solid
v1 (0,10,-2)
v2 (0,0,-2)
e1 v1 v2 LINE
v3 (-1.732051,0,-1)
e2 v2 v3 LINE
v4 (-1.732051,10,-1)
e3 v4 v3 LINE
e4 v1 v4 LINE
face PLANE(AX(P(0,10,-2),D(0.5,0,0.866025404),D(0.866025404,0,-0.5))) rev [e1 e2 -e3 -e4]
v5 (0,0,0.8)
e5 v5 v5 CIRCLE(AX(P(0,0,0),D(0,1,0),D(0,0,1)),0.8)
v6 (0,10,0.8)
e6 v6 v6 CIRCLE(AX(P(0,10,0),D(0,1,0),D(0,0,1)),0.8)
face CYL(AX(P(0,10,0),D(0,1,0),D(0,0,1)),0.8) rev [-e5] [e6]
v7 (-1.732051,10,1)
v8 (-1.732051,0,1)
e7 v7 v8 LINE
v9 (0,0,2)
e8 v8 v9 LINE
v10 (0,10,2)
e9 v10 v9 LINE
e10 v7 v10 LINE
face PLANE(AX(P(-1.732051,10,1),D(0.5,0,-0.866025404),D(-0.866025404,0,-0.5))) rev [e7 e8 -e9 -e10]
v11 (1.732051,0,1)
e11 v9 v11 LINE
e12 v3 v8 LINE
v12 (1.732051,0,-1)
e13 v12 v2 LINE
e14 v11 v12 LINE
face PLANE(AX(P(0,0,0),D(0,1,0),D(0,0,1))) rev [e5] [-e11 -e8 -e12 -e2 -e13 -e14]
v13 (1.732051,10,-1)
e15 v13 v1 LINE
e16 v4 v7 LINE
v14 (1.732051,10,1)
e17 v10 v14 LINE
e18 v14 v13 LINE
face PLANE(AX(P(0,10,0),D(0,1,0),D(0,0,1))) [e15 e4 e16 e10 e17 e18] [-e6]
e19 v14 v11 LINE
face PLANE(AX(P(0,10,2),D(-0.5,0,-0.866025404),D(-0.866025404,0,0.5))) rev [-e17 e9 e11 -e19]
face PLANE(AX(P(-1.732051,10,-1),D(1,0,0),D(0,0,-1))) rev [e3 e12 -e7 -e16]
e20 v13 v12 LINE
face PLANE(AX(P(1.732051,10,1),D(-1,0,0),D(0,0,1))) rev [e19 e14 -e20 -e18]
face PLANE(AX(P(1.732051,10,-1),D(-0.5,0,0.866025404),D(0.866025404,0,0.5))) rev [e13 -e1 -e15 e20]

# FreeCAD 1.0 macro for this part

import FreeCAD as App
import Part
import Sketcher
from FreeCAD import Vector
Q = App.Units.Quantity

doc = App.newDocument("Part")
body = doc.addObject("PartDesign::Body", "Body")

sketch1 = body.newObject("Sketcher::SketchObject", "Sketch")
sketch1.AttachmentSupport = (doc.getObject("XZ_Plane"), [""])
sketch1.MapMode = "FlatFace"
sketch1.addGeometry([
    Part.LineSegment(Vector(1.7, 1, 0), Vector(1.7, -1, 0)),
    Part.LineSegment(Vector(1.7, -1, 0), Vector(0, -2, 0)),
    Part.LineSegment(Vector(0, -2, 0), Vector(-1.7, -1, 0)),
    Part.LineSegment(Vector(-1.7, -1, 0), Vector(-1.7, 1, 0)),
    Part.LineSegment(Vector(-1.7, 1, 0), Vector(0, 2, 0)),
    Part.LineSegment(Vector(0, 2, 0), Vector(1.7, 1, 0)),
], False)
sketch1.addConstraint([
    Sketcher.Constraint("Coincident", 0, 2, 1, 1),
    Sketcher.Constraint("Coincident", 1, 2, 2, 1),
    Sketcher.Constraint("Coincident", 2, 2, 3, 1),
    Sketcher.Constraint("Coincident", 3, 2, 4, 1),
    Sketcher.Constraint("Coincident", 4, 2, 5, 1),
    Sketcher.Constraint("Coincident", 5, 2, 0, 1),
    Sketcher.Constraint("Vertical", 0),
    Sketcher.Constraint("Vertical", 3),
    Sketcher.Constraint("Symmetric", 0, 2, 3, 2, -1, 1),
    Sketcher.Constraint("Symmetric", 1, 2, 4, 2, -1, 1),
    Sketcher.Constraint("PointOnObject", 1, 2, -2),
    Sketcher.Constraint("Parallel", 2, 5),
    Sketcher.Constraint("Horizontal", 0, 2, 2, 2),
    Sketcher.Constraint("DistanceY", 0, 2, 0, 1, 2.0),
    Sketcher.Constraint("Angle", 1, Q("-150 deg")),
    Sketcher.Constraint("Distance", 1, 2.0),
])
pad1 = body.newObject("PartDesign::Pad", "Pad")
pad1.Profile = sketch1
pad1.Length = 10
pad1.Reversed = True

sketch2 = body.newObject("Sketcher::SketchObject", "Sketch001")
sketch2.AttachmentSupport = (doc.getObject("XZ_Plane"), [""])
sketch2.MapMode = "FlatFace"
sketch2.AttachmentOffset = App.Placement(Vector(0, 0, -10), App.Rotation())
sketch2.addGeometry(Part.Circle(Vector(0, 0, 0), Vector(0, 0, 1), 0.8), False)
sketch2.addConstraint([
    Sketcher.Constraint("Coincident", 0, 3, -1, 1),
    Sketcher.Constraint("Diameter", 0, 1.6),
])
doc.recompute()
hole = body.newObject("PartDesign::Hole", "Hole")
hole.Profile = sketch2
hole.ThreadType = "None"
hole.Diameter = 1.6
hole.DepthType = "ThroughAll"
hole.Reversed = True

doc.recompute()
